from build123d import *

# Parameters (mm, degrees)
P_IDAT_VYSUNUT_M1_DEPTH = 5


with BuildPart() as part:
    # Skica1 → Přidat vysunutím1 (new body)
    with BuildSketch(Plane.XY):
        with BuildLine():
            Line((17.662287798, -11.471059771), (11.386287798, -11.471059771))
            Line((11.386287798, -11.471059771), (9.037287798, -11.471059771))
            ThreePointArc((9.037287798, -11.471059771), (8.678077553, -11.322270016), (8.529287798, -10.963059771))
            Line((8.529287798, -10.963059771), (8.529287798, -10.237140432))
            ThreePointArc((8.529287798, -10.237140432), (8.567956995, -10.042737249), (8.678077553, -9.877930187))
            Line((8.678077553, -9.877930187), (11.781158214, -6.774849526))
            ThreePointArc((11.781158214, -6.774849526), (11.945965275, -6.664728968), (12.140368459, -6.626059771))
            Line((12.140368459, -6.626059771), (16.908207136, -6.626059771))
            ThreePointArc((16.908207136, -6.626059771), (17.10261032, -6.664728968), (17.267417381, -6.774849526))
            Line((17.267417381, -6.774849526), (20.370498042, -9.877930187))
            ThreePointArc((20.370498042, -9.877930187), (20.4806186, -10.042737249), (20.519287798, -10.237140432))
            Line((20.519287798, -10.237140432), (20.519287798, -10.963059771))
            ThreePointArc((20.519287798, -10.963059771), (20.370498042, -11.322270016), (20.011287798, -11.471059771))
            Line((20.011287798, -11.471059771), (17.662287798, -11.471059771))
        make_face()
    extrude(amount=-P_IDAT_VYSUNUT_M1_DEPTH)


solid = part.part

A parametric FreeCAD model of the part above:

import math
import FreeCAD as App
import Part
import Sketcher

doc = App.newDocument("Part")
body = doc.addObject("PartDesign::Body", "Body")

# Sketch on XY plane
sketch1 = body.newObject("Sketcher::SketchObject", "Sketch")
sketch1.AttachmentSupport = (doc.getObject("XY_Plane"), [""])
sketch1.MapMode = "FlatFace"
sketch1.addGeometry([
    Part.ArcOfCircle(Part.Circle(App.Vector(9.037288, -10.96306, 0), App.Vector(0, 0, 1), 0.508), math.radians(180), math.radians(270)),  # 0
    Part.LineSegment(App.Vector(9.037288, -11.47106, 0), App.Vector(20.011288, -11.47106, 0)),  # 1
    Part.ArcOfCircle(Part.Circle(App.Vector(20.011288, -10.96306, 0), App.Vector(0, 0, 1), 0.508), math.radians(-90), math.radians(0)),  # 2
    Part.LineSegment(App.Vector(20.519288, -10.96306, 0), App.Vector(20.519288, -10.23714, 0)),  # 3
    Part.ArcOfCircle(Part.Circle(App.Vector(20.011288, -10.23714, 0), App.Vector(0, 0, 1), 0.508), math.radians(0), math.radians(45)),  # 4
    Part.LineSegment(App.Vector(20.370498, -9.87793, 0), App.Vector(17.267417, -6.77485, 0)),  # 5
    Part.ArcOfCircle(Part.Circle(App.Vector(16.908207, -7.13406, 0), App.Vector(0, 0, 1), 0.508), math.radians(45), math.radians(90)),  # 6
    Part.LineSegment(App.Vector(16.908207, -6.62606, 0), App.Vector(12.140368, -6.62606, 0)),  # 7
    Part.ArcOfCircle(Part.Circle(App.Vector(12.140368, -7.13406, 0), App.Vector(0, 0, 1), 0.508), math.radians(90), math.radians(135)),  # 8
    Part.LineSegment(App.Vector(11.781158, -6.77485, 0), App.Vector(8.678078, -9.87793, 0)),  # 9
    Part.ArcOfCircle(Part.Circle(App.Vector(9.037288, -10.23714, 0), App.Vector(0, 0, 1), 0.508), math.radians(135), math.radians(180)),  # 10
    Part.LineSegment(App.Vector(8.529288, -10.23714, 0), App.Vector(8.529288, -10.96306, 0)),  # 11
], False)
sketch1.addConstraint([
    Sketcher.Constraint("Tangent", 0, 2, 1, 1),
    Sketcher.Constraint("Tangent", 1, 2, 2, 1),
    Sketcher.Constraint("Tangent", 2, 2, 3, 1),
    Sketcher.Constraint("Tangent", 3, 2, 4, 1),
    Sketcher.Constraint("Tangent", 4, 2, 5, 1),
    Sketcher.Constraint("Tangent", 5, 2, 6, 1),
    Sketcher.Constraint("Tangent", 6, 2, 7, 1),
    Sketcher.Constraint("Tangent", 7, 2, 8, 1),
    Sketcher.Constraint("Tangent", 8, 2, 9, 1),
    Sketcher.Constraint("Tangent", 9, 2, 10, 1),
    Sketcher.Constraint("Tangent", 10, 2, 11, 1),
    Sketcher.Constraint("Tangent", 11, 2, 0, 1),
    Sketcher.Constraint("Horizontal", 1),
    Sketcher.Constraint("Vertical", 3),
    Sketcher.Constraint("Horizontal", 7),
    Sketcher.Constraint("Vertical", 11),
    Sketcher.Constraint("Equal", 0, 2),
    Sketcher.Constraint("Equal", 2, 4),
    Sketcher.Constraint("Equal", 4, 6),
    Sketcher.Constraint("Equal", 6, 8),
    Sketcher.Constraint("Equal", 8, 10),
    Sketcher.Constraint("Perpendicular", 5, 9),
    Sketcher.Constraint("Horizontal", 4, 3, 10, 3),
    Sketcher.Constraint("Horizontal", 5, 2, 8, 2),
    Sketcher.Constraint("Radius", 0, 0.508),
    Sketcher.Constraint("DistanceX", 1, 1, 1, 2, 10.974),
    Sketcher.Constraint("DistanceY", 2, 3, 6, 3, 3.829),
    Sketcher.Constraint("DistanceX", 7, 2, 7, 1, 4.767839),
    Sketcher.Constraint("DistanceX", -1, 1, 4, 2, 20.370498),
    Sketcher.Constraint("DistanceY", 0, 3, -1, 1, 10.96306),
])
pad1 = body.newObject("PartDesign::Pad", "Pad")
pad1.Profile = sketch1
pad1.Length = 5
pad1.Reversed = True

doc.recompute()
